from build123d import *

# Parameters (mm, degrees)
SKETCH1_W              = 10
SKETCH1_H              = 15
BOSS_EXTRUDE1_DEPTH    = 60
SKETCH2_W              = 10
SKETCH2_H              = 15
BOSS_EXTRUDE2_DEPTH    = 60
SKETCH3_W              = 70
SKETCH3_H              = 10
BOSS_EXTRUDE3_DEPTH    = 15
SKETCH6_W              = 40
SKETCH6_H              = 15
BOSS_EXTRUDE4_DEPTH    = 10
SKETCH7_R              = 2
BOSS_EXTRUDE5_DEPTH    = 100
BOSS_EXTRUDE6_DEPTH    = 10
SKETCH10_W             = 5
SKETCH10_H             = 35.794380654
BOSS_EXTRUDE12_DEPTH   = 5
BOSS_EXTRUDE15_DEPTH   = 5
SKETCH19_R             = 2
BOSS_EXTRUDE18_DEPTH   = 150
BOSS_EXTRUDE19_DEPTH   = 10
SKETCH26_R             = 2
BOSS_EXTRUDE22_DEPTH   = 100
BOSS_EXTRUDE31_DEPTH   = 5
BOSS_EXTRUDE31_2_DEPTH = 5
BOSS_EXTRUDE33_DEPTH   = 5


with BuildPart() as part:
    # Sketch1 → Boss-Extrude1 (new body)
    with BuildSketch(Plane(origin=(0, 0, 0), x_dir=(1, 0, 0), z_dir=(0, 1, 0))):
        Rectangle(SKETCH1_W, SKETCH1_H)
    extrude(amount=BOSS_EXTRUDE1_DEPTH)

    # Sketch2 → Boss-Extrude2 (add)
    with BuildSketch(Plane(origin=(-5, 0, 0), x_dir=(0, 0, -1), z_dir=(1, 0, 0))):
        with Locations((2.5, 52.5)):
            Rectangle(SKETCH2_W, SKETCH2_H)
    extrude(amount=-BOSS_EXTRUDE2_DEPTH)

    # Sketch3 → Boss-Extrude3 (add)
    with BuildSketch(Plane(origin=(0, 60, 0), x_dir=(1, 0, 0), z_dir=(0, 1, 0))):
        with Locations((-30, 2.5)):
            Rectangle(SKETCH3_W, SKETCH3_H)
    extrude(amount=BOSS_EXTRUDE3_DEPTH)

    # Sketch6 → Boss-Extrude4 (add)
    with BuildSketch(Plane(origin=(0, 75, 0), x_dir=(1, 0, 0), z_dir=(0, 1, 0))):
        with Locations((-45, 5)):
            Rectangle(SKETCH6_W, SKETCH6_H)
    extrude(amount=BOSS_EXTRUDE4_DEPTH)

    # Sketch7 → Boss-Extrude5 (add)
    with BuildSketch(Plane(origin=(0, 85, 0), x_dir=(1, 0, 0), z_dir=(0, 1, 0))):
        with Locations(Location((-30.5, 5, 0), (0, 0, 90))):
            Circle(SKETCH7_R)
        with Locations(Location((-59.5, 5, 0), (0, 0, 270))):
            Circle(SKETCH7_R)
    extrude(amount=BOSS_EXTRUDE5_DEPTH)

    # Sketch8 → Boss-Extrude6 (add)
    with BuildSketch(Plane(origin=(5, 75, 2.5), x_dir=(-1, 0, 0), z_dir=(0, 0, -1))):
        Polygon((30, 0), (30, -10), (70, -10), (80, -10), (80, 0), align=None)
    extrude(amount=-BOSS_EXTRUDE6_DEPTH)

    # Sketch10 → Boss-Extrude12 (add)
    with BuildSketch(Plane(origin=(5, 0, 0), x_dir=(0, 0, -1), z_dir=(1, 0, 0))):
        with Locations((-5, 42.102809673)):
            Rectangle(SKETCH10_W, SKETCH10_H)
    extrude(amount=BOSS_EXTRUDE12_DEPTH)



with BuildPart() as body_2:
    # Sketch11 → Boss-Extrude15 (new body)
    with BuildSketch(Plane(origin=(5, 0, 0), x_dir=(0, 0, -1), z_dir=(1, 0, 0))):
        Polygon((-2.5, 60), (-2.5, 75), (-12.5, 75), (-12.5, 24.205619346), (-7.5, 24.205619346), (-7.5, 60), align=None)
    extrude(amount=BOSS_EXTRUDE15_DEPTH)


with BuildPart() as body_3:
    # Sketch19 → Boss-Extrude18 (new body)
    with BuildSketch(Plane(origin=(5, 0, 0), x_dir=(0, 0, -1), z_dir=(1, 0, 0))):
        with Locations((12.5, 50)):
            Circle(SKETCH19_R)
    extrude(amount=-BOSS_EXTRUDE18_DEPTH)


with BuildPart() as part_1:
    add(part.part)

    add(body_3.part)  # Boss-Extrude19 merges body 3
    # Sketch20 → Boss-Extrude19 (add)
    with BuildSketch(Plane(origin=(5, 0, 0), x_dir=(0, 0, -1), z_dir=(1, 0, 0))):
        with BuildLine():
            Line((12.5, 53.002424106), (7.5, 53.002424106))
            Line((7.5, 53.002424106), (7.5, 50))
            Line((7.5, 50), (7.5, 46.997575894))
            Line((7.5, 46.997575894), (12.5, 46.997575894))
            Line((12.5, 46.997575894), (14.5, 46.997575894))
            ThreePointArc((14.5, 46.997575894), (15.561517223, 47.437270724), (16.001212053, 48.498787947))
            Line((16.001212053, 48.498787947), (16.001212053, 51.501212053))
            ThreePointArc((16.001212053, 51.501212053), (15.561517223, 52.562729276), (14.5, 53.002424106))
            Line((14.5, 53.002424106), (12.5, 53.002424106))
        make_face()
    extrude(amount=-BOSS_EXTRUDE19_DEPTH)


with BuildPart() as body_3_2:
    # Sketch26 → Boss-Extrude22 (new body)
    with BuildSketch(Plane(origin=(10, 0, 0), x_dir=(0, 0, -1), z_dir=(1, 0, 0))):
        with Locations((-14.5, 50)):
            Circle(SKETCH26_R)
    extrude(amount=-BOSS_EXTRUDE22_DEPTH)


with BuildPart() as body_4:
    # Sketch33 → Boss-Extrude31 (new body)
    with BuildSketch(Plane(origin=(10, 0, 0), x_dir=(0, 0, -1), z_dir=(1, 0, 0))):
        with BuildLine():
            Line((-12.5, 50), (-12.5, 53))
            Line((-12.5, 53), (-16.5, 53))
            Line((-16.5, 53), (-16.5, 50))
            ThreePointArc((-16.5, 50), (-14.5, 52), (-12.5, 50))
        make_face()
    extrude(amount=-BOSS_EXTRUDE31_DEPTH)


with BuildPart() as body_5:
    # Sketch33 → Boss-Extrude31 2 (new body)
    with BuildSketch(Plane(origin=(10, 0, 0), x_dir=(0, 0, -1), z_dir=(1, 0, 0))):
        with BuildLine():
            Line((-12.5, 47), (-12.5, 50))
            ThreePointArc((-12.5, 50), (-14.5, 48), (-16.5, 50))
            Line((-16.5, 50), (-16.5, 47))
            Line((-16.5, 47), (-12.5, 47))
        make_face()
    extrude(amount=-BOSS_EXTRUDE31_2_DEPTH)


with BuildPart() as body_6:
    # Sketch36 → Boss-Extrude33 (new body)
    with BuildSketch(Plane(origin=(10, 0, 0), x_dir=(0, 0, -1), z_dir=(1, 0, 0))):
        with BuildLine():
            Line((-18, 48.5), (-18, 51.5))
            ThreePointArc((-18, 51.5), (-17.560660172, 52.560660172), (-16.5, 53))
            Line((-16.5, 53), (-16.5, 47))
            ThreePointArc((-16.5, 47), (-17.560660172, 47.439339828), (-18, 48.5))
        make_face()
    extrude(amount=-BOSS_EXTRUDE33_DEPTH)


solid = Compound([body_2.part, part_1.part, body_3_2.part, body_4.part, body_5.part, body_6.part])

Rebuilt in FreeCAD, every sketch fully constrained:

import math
import FreeCAD as App
import Part
import Sketcher

V = App.Vector
Q = App.Units.Quantity


def add_polygon(sketch, points):
    """Adds a closed chain of lines whose ends are joined by coincident constraints."""
    first, n = sketch.GeometryCount, len(points)
    for a, b in zip(points, points[1:] + points[:1]):
        sketch.addGeometry(Part.LineSegment(App.Vector(*a, 0), App.Vector(*b, 0)), False)
    for i in range(n):
        sketch.addConstraint(Sketcher.Constraint("Coincident", first + i, 2, first + (i + 1) % n, 1))

doc = App.newDocument("Part")
body = doc.addObject("PartDesign::Body", "Body")

# Sketch on XZ plane
sketch1 = doc.addObject("Sketcher::SketchObject", "Sketch")
body.addObject(sketch1)
sketch1.AttachmentSupport = (doc.XZ_Plane, [""])
sketch1.MapMode = "FlatFace"
add_polygon(sketch1, [(-5, -7.5), (-5, 7.5), (5, 7.5), (5, -7.5)])  # lines 0-3
sketch1.addConstraint(Sketcher.Constraint("Vertical", 0))
sketch1.addConstraint(Sketcher.Constraint("Horizontal", 1))
sketch1.addConstraint(Sketcher.Constraint("Vertical", 2))
sketch1.addConstraint(Sketcher.Constraint("Horizontal", 3))
sketch1.addConstraint(Sketcher.Constraint("Symmetric", 0, 2, 2, 2, -1, 1))
sketch1.addConstraint(Sketcher.Constraint("DistanceX", 1, 1, 1, 2, Q("10 mm")))
sketch1.addConstraint(Sketcher.Constraint("DistanceY", 0, 1, 0, 2, Q("15 mm")))
pad1 = doc.addObject("PartDesign::Pad", "Pad")
body.addObject(pad1)
pad1.Profile = sketch1
pad1.Length = 60
pad1.Reversed = True

# Sketch on YZ plane
sketch2 = doc.addObject("Sketcher::SketchObject", "Sketch001")
body.addObject(sketch2)
sketch2.AttachmentSupport = (doc.YZ_Plane, [""])
sketch2.MapMode = "FlatFace"
sketch2.AttachmentOffset = App.Placement(V(0, 0, -5), App.Rotation())
add_polygon(sketch2, [(60, 2.5), (45, 2.5), (45, -7.5), (60, -7.5)])  # lines 0-3
sketch2.addConstraint(Sketcher.Constraint("Horizontal", 0))
sketch2.addConstraint(Sketcher.Constraint("Vertical", 1))
sketch2.addConstraint(Sketcher.Constraint("Horizontal", 2))
sketch2.addConstraint(Sketcher.Constraint("Vertical", 3))
sketch2.addConstraint(Sketcher.Constraint("DistanceX", 0, 2, 0, 1, Q("15 mm")))
sketch2.addConstraint(Sketcher.Constraint("DistanceY", 1, 2, 1, 1, Q("10 mm")))
sketch2.addConstraint(Sketcher.Constraint("DistanceX", -1, 1, 0, 2, Q("45 mm")))
sketch2.addConstraint(Sketcher.Constraint("DistanceY", -1, 1, 0, 2, Q("2.5 mm")))
pad2 = doc.addObject("PartDesign::Pad", "Pad001")
body.addObject(pad2)
pad2.Profile = sketch2
pad2.Length = 60
pad2.Reversed = True

# Sketch on XZ plane
sketch3 = doc.addObject("Sketcher::SketchObject", "Sketch002")
body.addObject(sketch3)
sketch3.AttachmentSupport = (doc.XZ_Plane, [""])
sketch3.MapMode = "FlatFace"
sketch3.AttachmentOffset = App.Placement(V(0, 0, -60), App.Rotation())
add_polygon(sketch3, [(-65, -7.5), (-65, 2.5), (5, 2.5), (5, -7.5)])  # lines 0-3
sketch3.addConstraint(Sketcher.Constraint("Vertical", 0))
sketch3.addConstraint(Sketcher.Constraint("Horizontal", 1))
sketch3.addConstraint(Sketcher.Constraint("Vertical", 2))
sketch3.addConstraint(Sketcher.Constraint("Horizontal", 3))
sketch3.addConstraint(Sketcher.Constraint("DistanceX", 1, 1, 1, 2, Q("70 mm")))
sketch3.addConstraint(Sketcher.Constraint("DistanceY", 0, 1, 0, 2, Q("10 mm")))
sketch3.addConstraint(Sketcher.Constraint("DistanceX", 0, 2, -1, 1, Q("65 mm")))
sketch3.addConstraint(Sketcher.Constraint("DistanceY", -1, 1, 0, 2, Q("2.5 mm")))
pad3 = doc.addObject("PartDesign::Pad", "Pad002")
body.addObject(pad3)
pad3.Profile = sketch3
pad3.Length = 15
pad3.Reversed = True

# Sketch on XZ plane
sketch4 = doc.addObject("Sketcher::SketchObject", "Sketch003")
body.addObject(sketch4)
sketch4.AttachmentSupport = (doc.XZ_Plane, [""])
sketch4.MapMode = "FlatFace"
sketch4.AttachmentOffset = App.Placement(V(0, 0, -75), App.Rotation())
add_polygon(sketch4, [(-65, -12.5), (-65, 2.5), (-25, 2.5), (-25, -12.5)])  # lines 0-3
sketch4.addConstraint(Sketcher.Constraint("Vertical", 0))
sketch4.addConstraint(Sketcher.Constraint("Horizontal", 1))
sketch4.addConstraint(Sketcher.Constraint("Vertical", 2))
sketch4.addConstraint(Sketcher.Constraint("Horizontal", 3))
sketch4.addConstraint(Sketcher.Constraint("DistanceX", 1, 1, 1, 2, Q("40 mm")))
sketch4.addConstraint(Sketcher.Constraint("DistanceY", 0, 1, 0, 2, Q("15 mm")))
sketch4.addConstraint(Sketcher.Constraint("DistanceX", 0, 2, -1, 1, Q("65 mm")))
sketch4.addConstraint(Sketcher.Constraint("DistanceY", -1, 1, 0, 2, Q("2.5 mm")))
pad4 = doc.addObject("PartDesign::Pad", "Pad003")
body.addObject(pad4)
pad4.Profile = sketch4
pad4.Length = 10
pad4.Reversed = True

# Sketch on XZ plane
sketch5 = doc.addObject("Sketcher::SketchObject", "Sketch004")
body.addObject(sketch5)
sketch5.AttachmentSupport = (doc.XZ_Plane, [""])
sketch5.MapMode = "FlatFace"
sketch5.AttachmentOffset = App.Placement(V(0, 0, -85), App.Rotation())
sketch5.addGeometry(Part.Circle(V(-30.5, -5, 0), V(0, 0, 1), 2), False)
sketch5.addGeometry(Part.Circle(V(-59.5, -5, 0), V(0, 0, 1), 2), False)
sketch5.addConstraint(Sketcher.Constraint("Equal", 0, 1))
sketch5.addConstraint(Sketcher.Constraint("Horizontal", 0, 3, 1, 3))
sketch5.addConstraint(Sketcher.Constraint("Diameter", 0, Q("4 mm")))
sketch5.addConstraint(Sketcher.Constraint("DistanceY", 0, 3, -1, 1, Q("5 mm")))
sketch5.addConstraint(Sketcher.Constraint("DistanceX", 1, 3, 0, 3, Q("29 mm")))
sketch5.addConstraint(Sketcher.Constraint("DistanceX", 0, 3, -1, 1, Q("30.5 mm")))
pad5 = doc.addObject("PartDesign::Pad", "Pad004")
body.addObject(pad5)
pad5.Profile = sketch5
pad5.Length = 100
pad5.Reversed = True

# Sketch on XY plane
sketch6 = doc.addObject("Sketcher::SketchObject", "Sketch005")
body.addObject(sketch6)
sketch6.AttachmentSupport = (doc.XY_Plane, [""])
sketch6.MapMode = "FlatFace"
sketch6.AttachmentOffset = App.Placement(V(0, 0, 2.5), App.Rotation())
add_polygon(sketch6, [(-25, 75), (-25, 65), (-75, 65), (-75, 75)])  # lines 0-3
sketch6.addConstraint(Sketcher.Constraint("Vertical", 0))
sketch6.addConstraint(Sketcher.Constraint("Horizontal", 1))
sketch6.addConstraint(Sketcher.Constraint("Vertical", 2))
sketch6.addConstraint(Sketcher.Constraint("Horizontal", 3))
sketch6.addConstraint(Sketcher.Constraint("DistanceX", 1, 2, 1, 1, Q("50 mm")))
sketch6.addConstraint(Sketcher.Constraint("DistanceY", 0, 2, 0, 1, Q("10 mm")))
sketch6.addConstraint(Sketcher.Constraint("DistanceX", 0, 2, -1, 1, Q("25 mm")))
sketch6.addConstraint(Sketcher.Constraint("DistanceY", -1, 1, 0, 2, Q("65 mm")))
pad6 = doc.addObject("PartDesign::Pad", "Pad005")
body.addObject(pad6)
pad6.Profile = sketch6
pad6.Length = 10

# Sketch on YZ plane
sketch7 = doc.addObject("Sketcher::SketchObject", "Sketch006")
body.addObject(sketch7)
sketch7.AttachmentSupport = (doc.YZ_Plane, [""])
sketch7.MapMode = "FlatFace"
sketch7.AttachmentOffset = App.Placement(V(0, 0, 5), App.Rotation())
add_polygon(sketch7, [(60, 7.5), (24.205619, 7.5), (24.205619, 2.5), (60, 2.5)])  # lines 0-3
sketch7.addConstraint(Sketcher.Constraint("Horizontal", 0))
sketch7.addConstraint(Sketcher.Constraint("Vertical", 1))
sketch7.addConstraint(Sketcher.Constraint("Horizontal", 2))
sketch7.addConstraint(Sketcher.Constraint("Vertical", 3))
sketch7.addConstraint(Sketcher.Constraint("DistanceY", 1, 2, 1, 1, Q("5 mm")))
sketch7.addConstraint(Sketcher.Constraint("DistanceX", -1, 1, 2, 2, Q("60 mm")))
sketch7.addConstraint(Sketcher.Constraint("DistanceY", -1, 1, 0, 2, Q("7.5 mm")))
sketch7.addConstraint(Sketcher.Constraint("DistanceX", 0, 2, 0, 1, Q("35.794381 mm")))
pad7 = doc.addObject("PartDesign::Pad", "Pad006")
body.addObject(pad7)
pad7.Profile = sketch7
pad7.Length = 5
body2 = doc.addObject("PartDesign::Body", "Body001")

# Sketch on YZ plane
sketch8 = doc.addObject("Sketcher::SketchObject", "Sketch007")
body2.addObject(sketch8)
sketch8.AttachmentSupport = (doc.getObject("YZ_Plane001"), [""])
sketch8.MapMode = "FlatFace"
sketch8.AttachmentOffset = App.Placement(V(0, 0, 5), App.Rotation())
add_polygon(sketch8, [(60, 2.5), (75, 2.5), (75, 12.5), (24.205619, 12.5), (24.205619, 7.5), (60, 7.5)])  # lines 0-5
sketch8.addConstraint(Sketcher.Constraint("Horizontal", 0))
sketch8.addConstraint(Sketcher.Constraint("Vertical", 1))
sketch8.addConstraint(Sketcher.Constraint("Horizontal", 2))
sketch8.addConstraint(Sketcher.Constraint("Vertical", 3))
sketch8.addConstraint(Sketcher.Constraint("Horizontal", 4))
sketch8.addConstraint(Sketcher.Constraint("Vertical", 5))
sketch8.addConstraint(Sketcher.Constraint("Equal", 3, 5))
sketch8.addConstraint(Sketcher.Constraint("DistanceX", 0, 1, 0, 2, Q("15 mm")))
sketch8.addConstraint(Sketcher.Constraint("DistanceY", 1, 1, 1, 2, Q("10 mm")))
sketch8.addConstraint(Sketcher.Constraint("DistanceX", -1, 1, 0, 2, Q("75 mm")))
sketch8.addConstraint(Sketcher.Constraint("DistanceY", -1, 1, 0, 2, Q("2.5 mm")))
sketch8.addConstraint(Sketcher.Constraint("DistanceX", 2, 2, 2, 1, Q("50.794381 mm")))
pad8 = doc.addObject("PartDesign::Pad", "Pad007")
body2.addObject(pad8)
pad8.Profile = sketch8
pad8.Length = 5
body3 = doc.addObject("PartDesign::Body", "Body002")

# Sketch on YZ plane
sketch9 = doc.addObject("Sketcher::SketchObject", "Sketch008")
body3.addObject(sketch9)
sketch9.AttachmentSupport = (doc.getObject("YZ_Plane002"), [""])
sketch9.MapMode = "FlatFace"
sketch9.AttachmentOffset = App.Placement(V(0, 0, 5), App.Rotation())
sketch9.addGeometry(Part.Circle(V(50, -12.5, 0), V(0, 0, 1), 2), False)
sketch9.addConstraint(Sketcher.Constraint("Diameter", 0, Q("4 mm")))
sketch9.addConstraint(Sketcher.Constraint("DistanceX", -1, 1, 0, 3, Q("50 mm")))
sketch9.addConstraint(Sketcher.Constraint("DistanceY", 0, 3, -1, 1, Q("12.5 mm")))
pad9 = doc.addObject("PartDesign::Pad", "Pad008")
body3.addObject(pad9)
pad9.Profile = sketch9
pad9.Length = 150
pad9.Reversed = True
body.AllowCompound = True
doc.recompute()

boolean = doc.addObject("PartDesign::Boolean", "Boolean")
body.addObject(boolean)
boolean.Type = "Fuse"
boolean.addObjects([body3])

# Sketch on YZ plane
sketch10 = doc.addObject("Sketcher::SketchObject", "Sketch009")
body.addObject(sketch10)
sketch10.AttachmentSupport = (doc.YZ_Plane, [""])
sketch10.MapMode = "FlatFace"
sketch10.AttachmentOffset = App.Placement(V(0, 0, 5), App.Rotation())
sketch10.addGeometry(Part.LineSegment(V(53.002424, -7.5, 0), V(46.997576, -7.5, 0)), False)
sketch10.addGeometry(Part.LineSegment(V(46.997576, -7.5, 0), V(46.997576, -14.5, 0)), False)
sketch10.addGeometry(Part.ArcOfCircle(Part.Circle(V(48.498788, -14.5, 0), V(0, 0, 1), 1.501212), math.radians(180), math.radians(270)), False)
sketch10.addGeometry(Part.LineSegment(V(48.498788, -16.001212, 0), V(51.501212, -16.001212, 0)), False)
sketch10.addGeometry(Part.ArcOfCircle(Part.Circle(V(51.501212, -14.5, 0), V(0, 0, 1), 1.501212), math.radians(-90), math.radians(0)), False)
sketch10.addGeometry(Part.LineSegment(V(53.002424, -14.5, 0), V(53.002424, -7.5, 0)), False)
sketch10.addConstraint(Sketcher.Constraint("Coincident", 0, 2, 1, 1))
sketch10.addConstraint(Sketcher.Constraint("Tangent", 1, 2, 2, 1))
sketch10.addConstraint(Sketcher.Constraint("Tangent", 2, 2, 3, 1))
sketch10.addConstraint(Sketcher.Constraint("Tangent", 3, 2, 4, 1))
sketch10.addConstraint(Sketcher.Constraint("Tangent", 4, 2, 5, 1))
sketch10.addConstraint(Sketcher.Constraint("Coincident", 5, 2, 0, 1))
sketch10.addConstraint(Sketcher.Constraint("Horizontal", 0))
sketch10.addConstraint(Sketcher.Constraint("Vertical", 1))
sketch10.addConstraint(Sketcher.Constraint("Horizontal", 3))
sketch10.addConstraint(Sketcher.Constraint("Vertical", 5))
sketch10.addConstraint(Sketcher.Constraint("Equal", 2, 4))
sketch10.addConstraint(Sketcher.Constraint("DistanceY", 1, 2, 1, 1, Q("7 mm")))
sketch10.addConstraint(Sketcher.Constraint("DistanceY", 2, 3, -1, 1, Q("14.5 mm")))
sketch10.addConstraint(Sketcher.Constraint("Radius", 2, Q("1.501212 mm")))
sketch10.addConstraint(Sketcher.Constraint("DistanceX", 0, 2, 0, 1, Q("6.004848 mm")))
sketch10.addConstraint(Sketcher.Constraint("DistanceX", -1, 1, 2, 3, Q("48.498788 mm")))
pad10 = doc.addObject("PartDesign::Pad", "Pad009")
body.addObject(pad10)
pad10.Profile = sketch10
pad10.Length = 10
pad10.Reversed = True
body4 = doc.addObject("PartDesign::Body", "Body003")

# Sketch on YZ plane
sketch11 = doc.addObject("Sketcher::SketchObject", "Sketch010")
body4.addObject(sketch11)
sketch11.AttachmentSupport = (doc.getObject("YZ_Plane003"), [""])
sketch11.MapMode = "FlatFace"
sketch11.AttachmentOffset = App.Placement(V(0, 0, 10), App.Rotation())
sketch11.addGeometry(Part.Circle(V(50, 14.5, 0), V(0, 0, 1), 2), False)
sketch11.addConstraint(Sketcher.Constraint("Diameter", 0, Q("4 mm")))
sketch11.addConstraint(Sketcher.Constraint("DistanceX", -1, 1, 0, 3, Q("50 mm")))
sketch11.addConstraint(Sketcher.Constraint("DistanceY", -1, 1, 0, 3, Q("14.5 mm")))
pad11 = doc.addObject("PartDesign::Pad", "Pad010")
body4.addObject(pad11)
pad11.Profile = sketch11
pad11.Length = 100
pad11.Reversed = True
body5 = doc.addObject("PartDesign::Body", "Body004")

# Sketch on YZ plane
sketch12 = doc.addObject("Sketcher::SketchObject", "Sketch011")
body5.addObject(sketch12)
sketch12.AttachmentSupport = (doc.getObject("YZ_Plane004"), [""])
sketch12.MapMode = "FlatFace"
sketch12.AttachmentOffset = App.Placement(V(0, 0, 10), App.Rotation())
sketch12.addGeometry(Part.LineSegment(V(50, 12.5, 0), V(53, 12.5, 0)), False)
sketch12.addGeometry(Part.LineSegment(V(53, 12.5, 0), V(53, 16.5, 0)), False)
sketch12.addGeometry(Part.LineSegment(V(53, 16.5, 0), V(50, 16.5, 0)), False)
sketch12.addGeometry(Part.ArcOfCircle(Part.Circle(V(50, 14.5, 0), V(0, 0, 1), 2), math.radians(-90), math.radians(90)), False)
sketch12.addConstraint(Sketcher.Constraint("Coincident", 0, 2, 1, 1))
sketch12.addConstraint(Sketcher.Constraint("Coincident", 1, 2, 2, 1))
sketch12.addConstraint(Sketcher.Constraint("Tangent", 2, 2, 3, 2))
sketch12.addConstraint(Sketcher.Constraint("Tangent", 3, 1, 0, 1))
sketch12.addConstraint(Sketcher.Constraint("Horizontal", 0))
sketch12.addConstraint(Sketcher.Constraint("Vertical", 1))
sketch12.addConstraint(Sketcher.Constraint("Horizontal", 2))
sketch12.addConstraint(Sketcher.Constraint("Radius", 3, Q("2 mm")))
sketch12.addConstraint(Sketcher.Constraint("DistanceX", 0, 1, 0, 2, Q("3 mm")))
sketch12.addConstraint(Sketcher.Constraint("DistanceX", -1, 1, 3, 3, Q("50 mm")))
sketch12.addConstraint(Sketcher.Constraint("DistanceY", -1, 1, 3, 3, Q("14.5 mm")))
pad12 = doc.addObject("PartDesign::Pad", "Pad011")
body5.addObject(pad12)
pad12.Profile = sketch12
pad12.Length = 5
pad12.Reversed = True
body6 = doc.addObject("PartDesign::Body", "Body005")

# Sketch on YZ plane
sketch13 = doc.addObject("Sketcher::SketchObject", "Sketch012")
body6.addObject(sketch13)
sketch13.AttachmentSupport = (doc.getObject("YZ_Plane005"), [""])
sketch13.MapMode = "FlatFace"
sketch13.AttachmentOffset = App.Placement(V(0, 0, 10), App.Rotation())
sketch13.addGeometry(Part.LineSegment(V(47, 12.5, 0), V(50, 12.5, 0)), False)
sketch13.addGeometry(Part.ArcOfCircle(Part.Circle(V(50, 14.5, 0), V(0, 0, 1), 2), math.radians(90), math.radians(270)), False)
sketch13.addGeometry(Part.LineSegment(V(50, 16.5, 0), V(47, 16.5, 0)), False)
sketch13.addGeometry(Part.LineSegment(V(47, 16.5, 0), V(47, 12.5, 0)), False)
sketch13.addConstraint(Sketcher.Constraint("Tangent", 0, 2, 1, 2))
sketch13.addConstraint(Sketcher.Constraint("Tangent", 1, 1, 2, 1))
sketch13.addConstraint(Sketcher.Constraint("Coincident", 2, 2, 3, 1))
sketch13.addConstraint(Sketcher.Constraint("Coincident", 3, 2, 0, 1))
sketch13.addConstraint(Sketcher.Constraint("Horizontal", 0))
sketch13.addConstraint(Sketcher.Constraint("Horizontal", 2))
sketch13.addConstraint(Sketcher.Constraint("Vertical", 3))
sketch13.addConstraint(Sketcher.Constraint("Radius", 1, Q("2 mm")))
sketch13.addConstraint(Sketcher.Constraint("DistanceX", 0, 1, 0, 2, Q("3 mm")))
sketch13.addConstraint(Sketcher.Constraint("DistanceX", -1, 1, 1, 3, Q("50 mm")))
sketch13.addConstraint(Sketcher.Constraint("DistanceY", -1, 1, 1, 3, Q("14.5 mm")))
pad13 = doc.addObject("PartDesign::Pad", "Pad012")
body6.addObject(pad13)
pad13.Profile = sketch13
pad13.Length = 5
pad13.Reversed = True
body7 = doc.addObject("PartDesign::Body", "Body006")

# Sketch on YZ plane
sketch14 = doc.addObject("Sketcher::SketchObject", "Sketch013")
body7.addObject(sketch14)
sketch14.AttachmentSupport = (doc.getObject("YZ_Plane006"), [""])
sketch14.MapMode = "FlatFace"
sketch14.AttachmentOffset = App.Placement(V(0, 0, 10), App.Rotation())
sketch14.addGeometry(Part.LineSegment(V(51.5, 18, 0), V(48.5, 18, 0)), False)
sketch14.addGeometry(Part.ArcOfCircle(Part.Circle(V(48.5, 16.5, 0), V(0, 0, 1), 1.5), math.radians(90), math.radians(180)), False)
sketch14.addGeometry(Part.LineSegment(V(47, 16.5, 0), V(53, 16.5, 0)), False)
sketch14.addGeometry(Part.ArcOfCircle(Part.Circle(V(51.5, 16.5, 0), V(0, 0, 1), 1.5), math.radians(0), math.radians(90)), False)
sketch14.addConstraint(Sketcher.Constraint("Tangent", 0, 2, 1, 1))
sketch14.addConstraint(Sketcher.Constraint("Coincident", 1, 2, 2, 1))
sketch14.addConstraint(Sketcher.Constraint("Coincident", 2, 2, 3, 1))
sketch14.addConstraint(Sketcher.Constraint("Tangent", 3, 2, 0, 1))
sketch14.addConstraint(Sketcher.Constraint("Horizontal", 0))
sketch14.addConstraint(Sketcher.Constraint("Horizontal", 2))
sketch14.addConstraint(Sketcher.Constraint("Equal", 1, 3))
sketch14.addConstraint(Sketcher.Constraint("Horizontal", 3, 3, 1, 2))
sketch14.addConstraint(Sketcher.Constraint("Radius", 1, Q("1.5 mm")))
sketch14.addConstraint(Sketcher.Constraint("DistanceX", 0, 2, 0, 1, Q("3 mm")))
sketch14.addConstraint(Sketcher.Constraint("DistanceY", -1, 1, 0, 2, Q("18 mm")))
sketch14.addConstraint(Sketcher.Constraint("DistanceX", -1, 1, 1, 2, Q("47 mm")))
pad14 = doc.addObject("PartDesign::Pad", "Pad013")
body7.addObject(pad14)
pad14.Profile = sketch14
pad14.Length = 5
pad14.Reversed = True

doc.recompute()
